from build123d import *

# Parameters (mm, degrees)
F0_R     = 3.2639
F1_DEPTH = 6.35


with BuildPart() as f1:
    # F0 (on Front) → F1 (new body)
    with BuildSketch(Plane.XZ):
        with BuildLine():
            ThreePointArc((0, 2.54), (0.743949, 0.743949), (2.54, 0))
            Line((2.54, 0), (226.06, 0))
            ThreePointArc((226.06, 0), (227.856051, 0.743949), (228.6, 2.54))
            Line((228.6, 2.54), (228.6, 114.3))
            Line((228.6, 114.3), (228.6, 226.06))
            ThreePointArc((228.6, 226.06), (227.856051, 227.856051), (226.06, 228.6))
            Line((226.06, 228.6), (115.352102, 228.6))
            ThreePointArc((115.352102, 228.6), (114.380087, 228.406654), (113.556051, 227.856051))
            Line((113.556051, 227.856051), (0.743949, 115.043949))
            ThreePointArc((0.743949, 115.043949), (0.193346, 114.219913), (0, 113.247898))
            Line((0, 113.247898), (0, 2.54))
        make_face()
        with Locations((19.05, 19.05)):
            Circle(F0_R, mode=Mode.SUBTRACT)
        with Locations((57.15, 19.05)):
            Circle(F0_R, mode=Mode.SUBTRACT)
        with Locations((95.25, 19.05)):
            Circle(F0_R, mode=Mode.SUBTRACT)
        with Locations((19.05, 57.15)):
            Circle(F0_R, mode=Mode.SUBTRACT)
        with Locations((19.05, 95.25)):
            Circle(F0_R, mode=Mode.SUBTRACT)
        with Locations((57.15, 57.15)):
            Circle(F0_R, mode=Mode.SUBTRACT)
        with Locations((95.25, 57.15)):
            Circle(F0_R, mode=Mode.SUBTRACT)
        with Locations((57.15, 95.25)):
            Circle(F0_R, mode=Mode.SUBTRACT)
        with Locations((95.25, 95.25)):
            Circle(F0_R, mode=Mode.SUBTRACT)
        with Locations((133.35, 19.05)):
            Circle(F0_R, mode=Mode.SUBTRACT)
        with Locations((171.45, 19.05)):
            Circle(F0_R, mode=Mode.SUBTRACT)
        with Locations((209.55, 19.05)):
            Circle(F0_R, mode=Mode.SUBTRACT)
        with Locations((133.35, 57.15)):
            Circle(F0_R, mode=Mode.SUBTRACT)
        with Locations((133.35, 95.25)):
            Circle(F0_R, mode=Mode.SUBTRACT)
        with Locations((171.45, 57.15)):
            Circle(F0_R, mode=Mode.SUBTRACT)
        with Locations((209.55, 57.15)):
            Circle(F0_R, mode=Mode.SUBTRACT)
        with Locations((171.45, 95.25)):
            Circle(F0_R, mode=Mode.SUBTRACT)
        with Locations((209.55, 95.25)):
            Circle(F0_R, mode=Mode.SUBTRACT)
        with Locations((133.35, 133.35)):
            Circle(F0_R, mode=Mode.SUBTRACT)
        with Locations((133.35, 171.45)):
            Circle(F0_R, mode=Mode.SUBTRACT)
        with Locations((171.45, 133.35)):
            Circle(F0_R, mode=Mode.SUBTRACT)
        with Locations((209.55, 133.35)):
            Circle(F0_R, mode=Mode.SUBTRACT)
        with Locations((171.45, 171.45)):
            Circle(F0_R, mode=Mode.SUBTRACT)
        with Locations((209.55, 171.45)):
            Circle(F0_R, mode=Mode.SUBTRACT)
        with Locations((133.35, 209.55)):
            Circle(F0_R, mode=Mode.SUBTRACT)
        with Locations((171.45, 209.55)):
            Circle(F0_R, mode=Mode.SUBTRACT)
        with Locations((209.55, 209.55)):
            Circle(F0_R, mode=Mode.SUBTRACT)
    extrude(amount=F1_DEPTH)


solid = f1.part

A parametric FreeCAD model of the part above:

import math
import FreeCAD as App
import Part
import Sketcher

V = App.Vector
Q = App.Units.Quantity

doc = App.newDocument("Part")
body = doc.addObject("PartDesign::Body", "Body")

# Sketch on XZ plane
sketch1 = body.newObject("Sketcher::SketchObject", "Sketch")
sketch1.AttachmentSupport = (doc.getObject("XZ_Plane"), [""])
sketch1.MapMode = "FlatFace"
sketch1.addGeometry([
    Part.ArcOfCircle(Part.Circle(V(2.5, 2.5, 0), V(0, 0, 1), 2.5), math.radians(-180), math.radians(-90)),  # 0
    Part.LineSegment(V(2.5, 0, 0), V(226.1, 0, 0)),  # 1
    Part.ArcOfCircle(Part.Circle(V(226.1, 2.5, 0), V(0, 0, 1), 2.5), math.radians(-90), math.radians(0)),  # 2
    Part.LineSegment(V(228.6, 2.5, 0), V(228.6, 226.1, 0)),  # 3
    Part.ArcOfCircle(Part.Circle(V(226.1, 226.1, 0), V(0, 0, 1), 2.5), math.radians(0), math.radians(90)),  # 4
    Part.LineSegment(V(226.1, 228.6, 0), V(115.4, 228.6, 0)),  # 5
    Part.ArcOfCircle(Part.Circle(V(115.4, 226.1, 0), V(0, 0, 1), 2.5), math.radians(90), math.radians(135)),  # 6
    Part.LineSegment(V(113.6, 227.9, 0), V(0.7, 115, 0)),  # 7
    Part.ArcOfCircle(Part.Circle(V(2.5, 113.2, 0), V(0, 0, 1), 2.5), math.radians(135), math.radians(180)),  # 8
    Part.LineSegment(V(0, 113.2, 0), V(0, 2.5, 0)),  # 9
    Part.Circle(V(19.1, 19.1, 0), V(0, 0, 1), 3.3),  # 10
    Part.Circle(V(57.1, 19.1, 0), V(0, 0, 1), 3.3),  # 11
    Part.Circle(V(19.1, 57.1, 0), V(0, 0, 1), 3.3),  # 12
    Part.Circle(V(57.1, 57.1, 0), V(0, 0, 1), 3.3),  # 13
    Part.Circle(V(95.2, 19.1, 0), V(0, 0, 1), 3.3),  # 14
    Part.Circle(V(95.2, 57.1, 0), V(0, 0, 1), 3.3),  # 15
    Part.Circle(V(19.1, 95.2, 0), V(0, 0, 1), 3.3),  # 16
    Part.Circle(V(57.1, 95.2, 0), V(0, 0, 1), 3.3),  # 17
    Part.Circle(V(95.2, 95.2, 0), V(0, 0, 1), 3.3),  # 18
    Part.Circle(V(133.3, 19.1, 0), V(0, 0, 1), 3.3),  # 19
    Part.Circle(V(133.3, 57.1, 0), V(0, 0, 1), 3.3),  # 20
    Part.Circle(V(171.4, 19.1, 0), V(0, 0, 1), 3.3),  # 21
    Part.Circle(V(209.6, 19.1, 0), V(0, 0, 1), 3.3),  # 22
    Part.Circle(V(171.4, 57.1, 0), V(0, 0, 1), 3.3),  # 23
    Part.Circle(V(209.6, 57.1, 0), V(0, 0, 1), 3.3),  # 24
    Part.Circle(V(133.3, 95.2, 0), V(0, 0, 1), 3.3),  # 25
    Part.Circle(V(171.4, 95.2, 0), V(0, 0, 1), 3.3),  # 26
    Part.Circle(V(209.6, 95.2, 0), V(0, 0, 1), 3.3),  # 27
    Part.Circle(V(133.3, 133.3, 0), V(0, 0, 1), 3.3),  # 28
    Part.Circle(V(171.4, 133.3, 0), V(0, 0, 1), 3.3),  # 29
    Part.Circle(V(209.6, 133.3, 0), V(0, 0, 1), 3.3),  # 30
    Part.Circle(V(133.3, 171.4, 0), V(0, 0, 1), 3.3),  # 31
    Part.Circle(V(133.3, 209.6, 0), V(0, 0, 1), 3.3),  # 32
    Part.Circle(V(171.4, 171.4, 0), V(0, 0, 1), 3.3),  # 33
    Part.Circle(V(209.6, 171.4, 0), V(0, 0, 1), 3.3),  # 34
    Part.Circle(V(171.4, 209.6, 0), V(0, 0, 1), 3.3),  # 35
    Part.Circle(V(209.6, 209.6, 0), V(0, 0, 1), 3.3),  # 36
], False)
sketch1.addConstraint([
    Sketcher.Constraint("Tangent", 0, 2, 1, 1),
    Sketcher.Constraint("Tangent", 1, 2, 2, 1),
    Sketcher.Constraint("Tangent", 2, 2, 3, 1),
    Sketcher.Constraint("Tangent", 3, 2, 4, 1),
    Sketcher.Constraint("Tangent", 4, 2, 5, 1),
    Sketcher.Constraint("Tangent", 5, 2, 6, 1),
    Sketcher.Constraint("Tangent", 6, 2, 7, 1),
    Sketcher.Constraint("Tangent", 7, 2, 8, 1),
    Sketcher.Constraint("Tangent", 8, 2, 9, 1),
    Sketcher.Constraint("Tangent", 9, 2, 0, 1),
    Sketcher.Constraint("Horizontal", 1),
    Sketcher.Constraint("Vertical", 3),
    Sketcher.Constraint("Horizontal", 5),
    Sketcher.Constraint("Vertical", 9),
    Sketcher.Constraint("Equal", 0, 2),
    Sketcher.Constraint("Equal", 2, 4),
    Sketcher.Constraint("Equal", 4, 6),
    Sketcher.Constraint("Equal", 6, 8),
    Sketcher.Constraint("Equal", 10, 11),
    Sketcher.Constraint("Equal", 11, 12),
    Sketcher.Constraint("Equal", 12, 13),
    Sketcher.Constraint("Equal", 13, 14),
    Sketcher.Constraint("Equal", 14, 15),
    Sketcher.Constraint("Equal", 15, 16),
    Sketcher.Constraint("Equal", 16, 17),
    Sketcher.Constraint("Equal", 17, 18),
    Sketcher.Constraint("Equal", 18, 19),
    Sketcher.Constraint("Equal", 19, 20),
    Sketcher.Constraint("Equal", 20, 21),
    Sketcher.Constraint("Equal", 21, 22),
    Sketcher.Constraint("Equal", 22, 23),
    Sketcher.Constraint("Equal", 23, 24),
    Sketcher.Constraint("Equal", 24, 25),
    Sketcher.Constraint("Equal", 25, 26),
    Sketcher.Constraint("Equal", 26, 27),
    Sketcher.Constraint("Equal", 27, 28),
    Sketcher.Constraint("Equal", 28, 29),
    Sketcher.Constraint("Equal", 29, 30),
    Sketcher.Constraint("Equal", 30, 31),
    Sketcher.Constraint("Equal", 31, 32),
    Sketcher.Constraint("Equal", 32, 33),
    Sketcher.Constraint("Equal", 33, 34),
    Sketcher.Constraint("Equal", 34, 35),
    Sketcher.Constraint("Equal", 35, 36),
    Sketcher.Constraint("PointOnObject", 0, 2, -1),
    Sketcher.Constraint("PointOnObject", 8, 2, -2),
    Sketcher.Constraint("Horizontal", 10, 3, 11, 3),
    Sketcher.Constraint("Horizontal", 12, 3, 13, 3),
    Sketcher.Constraint("Horizontal", 11, 3, 14, 3),
    Sketcher.Constraint("Horizontal", 13, 3, 15, 3),
    Sketcher.Constraint("Horizontal", 16, 3, 17, 3),
    Sketcher.Constraint("Horizontal", 17, 3, 18, 3),
    Sketcher.Constraint("Horizontal", 14, 3, 19, 3),
    Sketcher.Constraint("Horizontal", 15, 3, 20, 3),
    Sketcher.Constraint("Horizontal", 19, 3, 21, 3),
    Sketcher.Constraint("Horizontal", 21, 3, 22, 3),
    Sketcher.Constraint("Horizontal", 20, 3, 23, 3),
    Sketcher.Constraint("Horizontal", 23, 3, 24, 3),
    Sketcher.Constraint("Horizontal", 18, 3, 25, 3),
    Sketcher.Constraint("Horizontal", 25, 3, 26, 3),
    Sketcher.Constraint("Horizontal", 26, 3, 27, 3),
    Sketcher.Constraint("Horizontal", 28, 3, 29, 3),
    Sketcher.Constraint("Horizontal", 29, 3, 30, 3),
    Sketcher.Constraint("Horizontal", 31, 3, 33, 3),
    Sketcher.Constraint("Horizontal", 33, 3, 34, 3),
    Sketcher.Constraint("Horizontal", 32, 3, 35, 3),
    Sketcher.Constraint("Horizontal", 35, 3, 36, 3),
    Sketcher.Constraint("Vertical", 10, 3, 12, 3),
    Sketcher.Constraint("Vertical", 11, 3, 13, 3),
    Sketcher.Constraint("Vertical", 14, 3, 15, 3),
    Sketcher.Constraint("Vertical", 12, 3, 16, 3),
    Sketcher.Constraint("Vertical", 13, 3, 17, 3),
    Sketcher.Constraint("Vertical", 15, 3, 18, 3),
    Sketcher.Constraint("Vertical", 19, 3, 20, 3),
    Sketcher.Constraint("Vertical", 21, 3, 23, 3),
    Sketcher.Constraint("Vertical", 22, 3, 24, 3),
    Sketcher.Constraint("Vertical", 20, 3, 25, 3),
    Sketcher.Constraint("Vertical", 23, 3, 26, 3),
    Sketcher.Constraint("Vertical", 24, 3, 27, 3),
    Sketcher.Constraint("Vertical", 25, 3, 28, 3),
    Sketcher.Constraint("Vertical", 26, 3, 29, 3),
    Sketcher.Constraint("Vertical", 27, 3, 30, 3),
    Sketcher.Constraint("Vertical", 28, 3, 31, 3),
    Sketcher.Constraint("Vertical", 31, 3, 32, 3),
    Sketcher.Constraint("Vertical", 29, 3, 33, 3),
    Sketcher.Constraint("Vertical", 30, 3, 34, 3),
    Sketcher.Constraint("Vertical", 33, 3, 35, 3),
    Sketcher.Constraint("Vertical", 34, 3, 36, 3),
    Sketcher.Constraint("Equal", 1, 3),
    Sketcher.Constraint("Equal", 5, 9),
    Sketcher.Constraint("Radius", 0, Q("0.1 in")),
    Sketcher.Constraint("Diameter", 10, Q("0.257 in")),
    Sketcher.Constraint("DistanceX", 1, 1, 1, 2, Q("8.8 in")),
    Sketcher.Constraint("DistanceX", 10, 3, 14, 3, Q("3 in")),
    Sketcher.Constraint("DistanceY", 10, 3, 16, 3, Q("3 in")),
    Sketcher.Constraint("DistanceX", 11, 3, 19, 3, Q("3 in")),
    Sketcher.Constraint("DistanceX", 14, 3, 21, 3, Q("3 in")),
    Sketcher.Constraint("DistanceX", 19, 3, 22, 3, Q("3 in")),
    Sketcher.Constraint("DistanceY", 20, 3, 28, 3, Q("3 in")),
    Sketcher.Constraint("DistanceY", 25, 3, 31, 3, Q("3 in")),
    Sketcher.Constraint("DistanceY", 28, 3, 32, 3, Q("3 in")),
    Sketcher.Constraint("DistanceX", 10, 3, 11, 3, Q("1.5 in")),
    Sketcher.Constraint("DistanceY", 10, 3, 12, 3, Q("1.5 in")),
    Sketcher.Constraint("DistanceX", -1, 1, 10, 3, Q("0.75 in")),
    Sketcher.Constraint("DistanceY", -1, 1, 10, 3, Q("0.75 in")),
    Sketcher.Constraint("DistanceX", 5, 2, 5, 1, Q("110.707898 mm")),
])
pad1 = body.newObject("PartDesign::Pad", "Pad")
pad1.Profile = sketch1
pad1.Length = Q("0.25 in")

doc.recompute()
